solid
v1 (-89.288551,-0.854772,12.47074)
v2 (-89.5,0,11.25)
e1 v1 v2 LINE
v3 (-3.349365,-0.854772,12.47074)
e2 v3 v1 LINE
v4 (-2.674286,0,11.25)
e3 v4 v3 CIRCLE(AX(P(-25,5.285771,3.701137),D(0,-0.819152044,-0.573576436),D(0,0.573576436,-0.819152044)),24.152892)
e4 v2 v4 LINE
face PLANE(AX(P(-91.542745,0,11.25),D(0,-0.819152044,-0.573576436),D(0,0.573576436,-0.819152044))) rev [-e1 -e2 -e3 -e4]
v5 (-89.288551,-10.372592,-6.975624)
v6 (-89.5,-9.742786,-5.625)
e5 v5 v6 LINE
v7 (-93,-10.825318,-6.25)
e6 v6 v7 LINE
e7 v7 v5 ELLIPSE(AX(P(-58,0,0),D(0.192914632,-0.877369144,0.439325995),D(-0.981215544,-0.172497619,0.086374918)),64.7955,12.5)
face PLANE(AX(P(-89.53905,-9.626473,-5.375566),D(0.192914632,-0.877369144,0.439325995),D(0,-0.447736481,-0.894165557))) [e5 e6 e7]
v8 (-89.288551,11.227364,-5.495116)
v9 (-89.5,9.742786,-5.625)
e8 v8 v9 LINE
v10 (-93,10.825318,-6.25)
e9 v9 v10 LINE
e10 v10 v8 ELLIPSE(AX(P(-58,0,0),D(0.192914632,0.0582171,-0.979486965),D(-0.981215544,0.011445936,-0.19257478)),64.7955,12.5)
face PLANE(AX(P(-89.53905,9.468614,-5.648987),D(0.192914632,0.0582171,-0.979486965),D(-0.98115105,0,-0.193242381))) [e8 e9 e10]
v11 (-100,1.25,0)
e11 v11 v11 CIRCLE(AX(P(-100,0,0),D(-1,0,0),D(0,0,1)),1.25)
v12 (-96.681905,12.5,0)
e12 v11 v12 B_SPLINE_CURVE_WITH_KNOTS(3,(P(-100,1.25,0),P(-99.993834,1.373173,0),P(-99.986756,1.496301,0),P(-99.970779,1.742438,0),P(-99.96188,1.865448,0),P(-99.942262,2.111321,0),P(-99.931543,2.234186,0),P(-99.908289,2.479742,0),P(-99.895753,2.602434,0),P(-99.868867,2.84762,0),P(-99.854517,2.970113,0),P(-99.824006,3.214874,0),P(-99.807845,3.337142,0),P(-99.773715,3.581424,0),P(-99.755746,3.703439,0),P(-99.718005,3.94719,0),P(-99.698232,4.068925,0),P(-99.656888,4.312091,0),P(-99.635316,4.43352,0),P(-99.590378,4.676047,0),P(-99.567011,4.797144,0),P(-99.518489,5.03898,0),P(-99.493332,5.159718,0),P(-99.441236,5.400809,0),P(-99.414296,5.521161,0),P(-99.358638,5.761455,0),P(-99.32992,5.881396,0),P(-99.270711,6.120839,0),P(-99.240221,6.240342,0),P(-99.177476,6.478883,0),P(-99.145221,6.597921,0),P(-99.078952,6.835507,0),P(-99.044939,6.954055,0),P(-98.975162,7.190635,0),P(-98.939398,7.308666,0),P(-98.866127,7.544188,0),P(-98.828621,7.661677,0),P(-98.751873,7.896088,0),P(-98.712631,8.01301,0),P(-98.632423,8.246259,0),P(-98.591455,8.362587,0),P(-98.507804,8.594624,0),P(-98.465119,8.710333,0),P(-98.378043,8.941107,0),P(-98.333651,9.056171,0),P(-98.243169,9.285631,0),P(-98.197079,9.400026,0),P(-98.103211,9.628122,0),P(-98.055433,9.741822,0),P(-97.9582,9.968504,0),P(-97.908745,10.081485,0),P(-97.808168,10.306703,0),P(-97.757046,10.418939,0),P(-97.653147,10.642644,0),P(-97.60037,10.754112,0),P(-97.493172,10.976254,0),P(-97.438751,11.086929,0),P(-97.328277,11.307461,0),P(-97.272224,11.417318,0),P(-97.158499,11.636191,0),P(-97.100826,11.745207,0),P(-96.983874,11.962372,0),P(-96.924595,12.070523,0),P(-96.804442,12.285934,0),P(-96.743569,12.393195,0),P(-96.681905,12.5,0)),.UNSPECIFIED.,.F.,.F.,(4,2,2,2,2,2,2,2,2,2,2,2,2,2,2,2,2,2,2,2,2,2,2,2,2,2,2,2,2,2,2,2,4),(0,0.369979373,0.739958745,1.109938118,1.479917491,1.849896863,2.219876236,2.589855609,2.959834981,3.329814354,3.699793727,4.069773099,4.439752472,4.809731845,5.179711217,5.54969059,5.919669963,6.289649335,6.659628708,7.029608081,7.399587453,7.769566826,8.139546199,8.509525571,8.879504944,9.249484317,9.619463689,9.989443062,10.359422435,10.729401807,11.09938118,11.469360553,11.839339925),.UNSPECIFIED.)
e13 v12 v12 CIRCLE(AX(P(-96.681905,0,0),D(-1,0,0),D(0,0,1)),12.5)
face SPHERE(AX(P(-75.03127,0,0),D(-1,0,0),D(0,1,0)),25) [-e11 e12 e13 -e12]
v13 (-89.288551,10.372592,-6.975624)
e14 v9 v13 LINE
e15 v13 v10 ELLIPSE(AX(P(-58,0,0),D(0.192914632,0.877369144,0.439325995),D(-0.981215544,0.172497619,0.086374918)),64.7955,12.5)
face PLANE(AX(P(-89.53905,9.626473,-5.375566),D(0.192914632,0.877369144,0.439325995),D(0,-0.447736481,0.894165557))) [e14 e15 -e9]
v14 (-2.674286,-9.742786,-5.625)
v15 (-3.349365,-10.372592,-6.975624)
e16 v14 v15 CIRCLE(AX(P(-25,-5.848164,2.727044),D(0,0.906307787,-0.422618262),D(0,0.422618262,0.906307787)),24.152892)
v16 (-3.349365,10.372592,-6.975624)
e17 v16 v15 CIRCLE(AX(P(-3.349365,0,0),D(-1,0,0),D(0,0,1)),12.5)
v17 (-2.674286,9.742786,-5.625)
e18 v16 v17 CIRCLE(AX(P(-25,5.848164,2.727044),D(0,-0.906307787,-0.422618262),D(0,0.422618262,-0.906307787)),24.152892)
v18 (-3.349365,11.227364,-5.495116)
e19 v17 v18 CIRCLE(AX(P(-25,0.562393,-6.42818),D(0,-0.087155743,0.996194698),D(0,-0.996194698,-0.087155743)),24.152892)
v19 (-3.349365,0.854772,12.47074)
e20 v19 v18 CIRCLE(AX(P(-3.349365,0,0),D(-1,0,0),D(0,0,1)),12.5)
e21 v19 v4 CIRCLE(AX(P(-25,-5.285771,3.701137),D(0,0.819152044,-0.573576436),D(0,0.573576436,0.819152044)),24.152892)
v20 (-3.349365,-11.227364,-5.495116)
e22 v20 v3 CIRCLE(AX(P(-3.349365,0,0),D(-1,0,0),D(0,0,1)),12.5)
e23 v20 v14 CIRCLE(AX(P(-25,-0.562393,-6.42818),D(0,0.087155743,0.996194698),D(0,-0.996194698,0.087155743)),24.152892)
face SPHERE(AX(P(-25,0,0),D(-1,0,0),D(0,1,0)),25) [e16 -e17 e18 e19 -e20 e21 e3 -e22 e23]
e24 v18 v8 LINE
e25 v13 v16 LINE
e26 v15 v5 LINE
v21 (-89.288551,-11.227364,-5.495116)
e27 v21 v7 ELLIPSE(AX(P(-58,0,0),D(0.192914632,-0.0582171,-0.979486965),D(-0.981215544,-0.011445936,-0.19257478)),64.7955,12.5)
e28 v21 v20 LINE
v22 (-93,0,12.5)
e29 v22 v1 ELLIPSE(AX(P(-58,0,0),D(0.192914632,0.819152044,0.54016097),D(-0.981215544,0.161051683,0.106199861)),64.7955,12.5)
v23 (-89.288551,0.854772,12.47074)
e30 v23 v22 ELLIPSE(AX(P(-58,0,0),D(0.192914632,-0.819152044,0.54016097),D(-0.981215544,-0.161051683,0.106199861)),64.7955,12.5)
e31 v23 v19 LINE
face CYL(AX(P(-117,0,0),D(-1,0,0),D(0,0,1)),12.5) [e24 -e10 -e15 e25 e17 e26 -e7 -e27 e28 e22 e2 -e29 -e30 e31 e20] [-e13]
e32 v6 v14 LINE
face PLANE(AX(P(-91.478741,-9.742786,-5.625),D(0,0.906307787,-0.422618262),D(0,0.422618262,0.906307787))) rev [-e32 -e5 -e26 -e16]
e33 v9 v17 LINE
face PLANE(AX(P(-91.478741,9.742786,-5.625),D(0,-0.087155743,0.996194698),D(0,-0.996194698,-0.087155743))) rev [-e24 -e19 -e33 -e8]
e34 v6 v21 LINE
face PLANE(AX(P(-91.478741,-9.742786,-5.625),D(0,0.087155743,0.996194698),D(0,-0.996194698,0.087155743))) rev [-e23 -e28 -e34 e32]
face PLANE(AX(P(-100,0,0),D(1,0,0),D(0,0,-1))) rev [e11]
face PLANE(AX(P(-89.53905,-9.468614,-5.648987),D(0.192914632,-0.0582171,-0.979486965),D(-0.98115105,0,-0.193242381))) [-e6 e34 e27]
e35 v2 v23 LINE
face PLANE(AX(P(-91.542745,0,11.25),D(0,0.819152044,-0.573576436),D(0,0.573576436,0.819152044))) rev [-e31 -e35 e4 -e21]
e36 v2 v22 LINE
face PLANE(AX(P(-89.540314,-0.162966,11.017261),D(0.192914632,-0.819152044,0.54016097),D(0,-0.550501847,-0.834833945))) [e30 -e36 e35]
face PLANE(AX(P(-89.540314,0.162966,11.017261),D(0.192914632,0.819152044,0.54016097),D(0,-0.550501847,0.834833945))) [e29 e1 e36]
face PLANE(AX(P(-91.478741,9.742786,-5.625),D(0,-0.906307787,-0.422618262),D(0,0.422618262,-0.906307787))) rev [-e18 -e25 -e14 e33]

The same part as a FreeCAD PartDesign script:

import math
import FreeCAD as App
import Part
import Sketcher
Q = App.Units.Quantity

doc = App.newDocument("Part")
params = doc.addObject("Spreadsheet::Sheet", "Params")
for row, (alias, value) in enumerate([
    ("sketch1_radius", "25 mm"),
    ("sketch1_width", "100 mm"),
    ("sketch1_height", "1.25 mm"),
    ("revolution_angle", "360 deg"),
    ("sketch3_width", "89.5 mm"),
], start=1):
    params.set(f"A{row}", alias)
    params.set(f"B{row}", "=" + value)
    params.setAlias(f"B{row}", alias)

body = doc.addObject("PartDesign::Body", "Body")

sketch1 = body.newObject("Sketcher::SketchObject", "Sketch")
sketch1.AttachmentSupport = (doc.getObject("XY_Plane"), [""])
sketch1.MapMode = "FlatFace"
sketch1.addGeometry([
    Part.LineSegment(App.Vector(-100, 1.25, 0), App.Vector(-100, 0, 0)),
    Part.LineSegment(App.Vector(-100, 0, 0), App.Vector(0, 0, 0)),
    Part.ArcOfCircle(Part.Circle(App.Vector(-25, 0, 0), App.Vector(0, 0, 1), 25), math.radians(0), math.radians(30)),
    Part.LineSegment(App.Vector(-3.349365, 12.5, 0), App.Vector(-96.681905, 12.5, 0)),
    Part.ArcOfCircle(Part.Circle(App.Vector(-75.03127, 0, 0), App.Vector(0, 0, 1), 25), math.radians(150), math.radians(177.134016)),
], False)
sketch1.addConstraint([
    Sketcher.Constraint("Coincident", 0, 2, 1, 1),
    Sketcher.Constraint("Coincident", 1, 2, 2, 1),
    Sketcher.Constraint("Coincident", 2, 2, 3, 1),
    Sketcher.Constraint("Coincident", 3, 2, 4, 1),
    Sketcher.Constraint("Coincident", 4, 2, 0, 1),
    Sketcher.Constraint("Vertical", 0),
    Sketcher.Constraint("Horizontal", 1),
    Sketcher.Constraint("Horizontal", 3),
    Sketcher.Constraint("Coincident", 1, 2, -1, 1),
    Sketcher.Constraint("Equal", 2, 4),
    Sketcher.Constraint("PointOnObject", 2, 3, -1),
    Sketcher.Constraint("PointOnObject", 4, 3, -1),
    Sketcher.Constraint("Radius", 2, 25.0),
    Sketcher.Constraint("DistanceX", 1, 1, 1, 2, 100.0),
    Sketcher.Constraint("DistanceY", 0, 2, 0, 1, 1.25),
    Sketcher.Constraint("DistanceY", -1, 1, 2, 2, 12.5),
])
sketch1.setExpression("Constraints[12]", "Params.sketch1_radius")
sketch1.setExpression("Constraints[13]", "Params.sketch1_width")
sketch1.setExpression("Constraints[14]", "Params.sketch1_height")
revolution = body.newObject("PartDesign::Revolution", "Revolution")
revolution.Profile = sketch1
revolution.ReferenceAxis = (sketch1, ["H_Axis"])
revolution.setExpression("Angle", "Params.revolution_angle")

sketch2 = body.newObject("Sketcher::SketchObject", "Sketch001")
sketch2.AttachmentSupport = (doc.getObject("YZ_Plane"), [""])
sketch2.MapMode = "FlatFace"
sketch2.addGeometry([
    Part.LineSegment(App.Vector(0, 11.25, 0), App.Vector(0.875259, 12.5, 0)),
    Part.LineSegment(App.Vector(0.875259, 12.5, 0), App.Vector(-0.875259, 12.5, 0)),
    Part.LineSegment(App.Vector(-0.875259, 12.5, 0), App.Vector(0, 11.25, 0)),
], False)
sketch2.addConstraint([
    Sketcher.Constraint("Coincident", 0, 2, 1, 1),
    Sketcher.Constraint("Coincident", 1, 2, 2, 1),
    Sketcher.Constraint("Coincident", 2, 2, 0, 1),
    Sketcher.Constraint("Horizontal", 1),
    Sketcher.Constraint("PointOnObject", 2, 2, -2),
    Sketcher.Constraint("Equal", 0, 2),
    Sketcher.Constraint("Angle", 0, Q("55 deg")),
    Sketcher.Constraint("DistanceY", -1, 1, 0, 2, 12.5),
    Sketcher.Constraint("DistanceY", -1, 1, 2, 2, 11.25),
])

sketch3 = body.newObject("Sketcher::SketchObject", "Sketch002")
sketch3.AttachmentSupport = (doc.getObject("XZ_Plane"), [""])
sketch3.MapMode = "FlatFace"
sketch3.addGeometry([
    Part.LineSegment(App.Vector(0, 11.25, 0), App.Vector(-89.5, 11.25, 0)),
    Part.LineSegment(App.Vector(-89.5, 11.25, 0), App.Vector(-93, 12.5, 0)),
], False)
sketch3.addConstraint([
    Sketcher.Constraint("Coincident", 0, 2, 1, 1),
    Sketcher.Constraint("Horizontal", 0),
    Sketcher.Constraint("PointOnObject", 0, 1, -2),
    Sketcher.Constraint("DistanceX", 0, 2, 0, 1, 89.5),
    Sketcher.Constraint("DistanceX", 1, 2, -1, 1, 93.0),
    Sketcher.Constraint("DistanceY", -1, 1, 1, 2, 12.5),
    Sketcher.Constraint("DistanceY", -1, 1, 0, 1, 11.25),
])
sketch3.setExpression("Constraints[3]", "Params.sketch3_width")
doc.recompute()

subtractivepipe = body.newObject("PartDesign::SubtractivePipe", "SubtractivePipe")
subtractivepipe.Profile = sketch2
subtractivepipe.Spine = (sketch3, ["Edge1", "Edge2"])
subtractivepipe.Transition = "Right corner"
doc.recompute()

polarpattern = body.newObject("PartDesign::PolarPattern", "PolarPattern")
polarpattern.Originals = [subtractivepipe]
polarpattern.Axis = (doc.getObject("X_Axis"), [""])
polarpattern.Angle = 360
polarpattern.Occurrences = 3
body.Tip = polarpattern

doc.recompute()
